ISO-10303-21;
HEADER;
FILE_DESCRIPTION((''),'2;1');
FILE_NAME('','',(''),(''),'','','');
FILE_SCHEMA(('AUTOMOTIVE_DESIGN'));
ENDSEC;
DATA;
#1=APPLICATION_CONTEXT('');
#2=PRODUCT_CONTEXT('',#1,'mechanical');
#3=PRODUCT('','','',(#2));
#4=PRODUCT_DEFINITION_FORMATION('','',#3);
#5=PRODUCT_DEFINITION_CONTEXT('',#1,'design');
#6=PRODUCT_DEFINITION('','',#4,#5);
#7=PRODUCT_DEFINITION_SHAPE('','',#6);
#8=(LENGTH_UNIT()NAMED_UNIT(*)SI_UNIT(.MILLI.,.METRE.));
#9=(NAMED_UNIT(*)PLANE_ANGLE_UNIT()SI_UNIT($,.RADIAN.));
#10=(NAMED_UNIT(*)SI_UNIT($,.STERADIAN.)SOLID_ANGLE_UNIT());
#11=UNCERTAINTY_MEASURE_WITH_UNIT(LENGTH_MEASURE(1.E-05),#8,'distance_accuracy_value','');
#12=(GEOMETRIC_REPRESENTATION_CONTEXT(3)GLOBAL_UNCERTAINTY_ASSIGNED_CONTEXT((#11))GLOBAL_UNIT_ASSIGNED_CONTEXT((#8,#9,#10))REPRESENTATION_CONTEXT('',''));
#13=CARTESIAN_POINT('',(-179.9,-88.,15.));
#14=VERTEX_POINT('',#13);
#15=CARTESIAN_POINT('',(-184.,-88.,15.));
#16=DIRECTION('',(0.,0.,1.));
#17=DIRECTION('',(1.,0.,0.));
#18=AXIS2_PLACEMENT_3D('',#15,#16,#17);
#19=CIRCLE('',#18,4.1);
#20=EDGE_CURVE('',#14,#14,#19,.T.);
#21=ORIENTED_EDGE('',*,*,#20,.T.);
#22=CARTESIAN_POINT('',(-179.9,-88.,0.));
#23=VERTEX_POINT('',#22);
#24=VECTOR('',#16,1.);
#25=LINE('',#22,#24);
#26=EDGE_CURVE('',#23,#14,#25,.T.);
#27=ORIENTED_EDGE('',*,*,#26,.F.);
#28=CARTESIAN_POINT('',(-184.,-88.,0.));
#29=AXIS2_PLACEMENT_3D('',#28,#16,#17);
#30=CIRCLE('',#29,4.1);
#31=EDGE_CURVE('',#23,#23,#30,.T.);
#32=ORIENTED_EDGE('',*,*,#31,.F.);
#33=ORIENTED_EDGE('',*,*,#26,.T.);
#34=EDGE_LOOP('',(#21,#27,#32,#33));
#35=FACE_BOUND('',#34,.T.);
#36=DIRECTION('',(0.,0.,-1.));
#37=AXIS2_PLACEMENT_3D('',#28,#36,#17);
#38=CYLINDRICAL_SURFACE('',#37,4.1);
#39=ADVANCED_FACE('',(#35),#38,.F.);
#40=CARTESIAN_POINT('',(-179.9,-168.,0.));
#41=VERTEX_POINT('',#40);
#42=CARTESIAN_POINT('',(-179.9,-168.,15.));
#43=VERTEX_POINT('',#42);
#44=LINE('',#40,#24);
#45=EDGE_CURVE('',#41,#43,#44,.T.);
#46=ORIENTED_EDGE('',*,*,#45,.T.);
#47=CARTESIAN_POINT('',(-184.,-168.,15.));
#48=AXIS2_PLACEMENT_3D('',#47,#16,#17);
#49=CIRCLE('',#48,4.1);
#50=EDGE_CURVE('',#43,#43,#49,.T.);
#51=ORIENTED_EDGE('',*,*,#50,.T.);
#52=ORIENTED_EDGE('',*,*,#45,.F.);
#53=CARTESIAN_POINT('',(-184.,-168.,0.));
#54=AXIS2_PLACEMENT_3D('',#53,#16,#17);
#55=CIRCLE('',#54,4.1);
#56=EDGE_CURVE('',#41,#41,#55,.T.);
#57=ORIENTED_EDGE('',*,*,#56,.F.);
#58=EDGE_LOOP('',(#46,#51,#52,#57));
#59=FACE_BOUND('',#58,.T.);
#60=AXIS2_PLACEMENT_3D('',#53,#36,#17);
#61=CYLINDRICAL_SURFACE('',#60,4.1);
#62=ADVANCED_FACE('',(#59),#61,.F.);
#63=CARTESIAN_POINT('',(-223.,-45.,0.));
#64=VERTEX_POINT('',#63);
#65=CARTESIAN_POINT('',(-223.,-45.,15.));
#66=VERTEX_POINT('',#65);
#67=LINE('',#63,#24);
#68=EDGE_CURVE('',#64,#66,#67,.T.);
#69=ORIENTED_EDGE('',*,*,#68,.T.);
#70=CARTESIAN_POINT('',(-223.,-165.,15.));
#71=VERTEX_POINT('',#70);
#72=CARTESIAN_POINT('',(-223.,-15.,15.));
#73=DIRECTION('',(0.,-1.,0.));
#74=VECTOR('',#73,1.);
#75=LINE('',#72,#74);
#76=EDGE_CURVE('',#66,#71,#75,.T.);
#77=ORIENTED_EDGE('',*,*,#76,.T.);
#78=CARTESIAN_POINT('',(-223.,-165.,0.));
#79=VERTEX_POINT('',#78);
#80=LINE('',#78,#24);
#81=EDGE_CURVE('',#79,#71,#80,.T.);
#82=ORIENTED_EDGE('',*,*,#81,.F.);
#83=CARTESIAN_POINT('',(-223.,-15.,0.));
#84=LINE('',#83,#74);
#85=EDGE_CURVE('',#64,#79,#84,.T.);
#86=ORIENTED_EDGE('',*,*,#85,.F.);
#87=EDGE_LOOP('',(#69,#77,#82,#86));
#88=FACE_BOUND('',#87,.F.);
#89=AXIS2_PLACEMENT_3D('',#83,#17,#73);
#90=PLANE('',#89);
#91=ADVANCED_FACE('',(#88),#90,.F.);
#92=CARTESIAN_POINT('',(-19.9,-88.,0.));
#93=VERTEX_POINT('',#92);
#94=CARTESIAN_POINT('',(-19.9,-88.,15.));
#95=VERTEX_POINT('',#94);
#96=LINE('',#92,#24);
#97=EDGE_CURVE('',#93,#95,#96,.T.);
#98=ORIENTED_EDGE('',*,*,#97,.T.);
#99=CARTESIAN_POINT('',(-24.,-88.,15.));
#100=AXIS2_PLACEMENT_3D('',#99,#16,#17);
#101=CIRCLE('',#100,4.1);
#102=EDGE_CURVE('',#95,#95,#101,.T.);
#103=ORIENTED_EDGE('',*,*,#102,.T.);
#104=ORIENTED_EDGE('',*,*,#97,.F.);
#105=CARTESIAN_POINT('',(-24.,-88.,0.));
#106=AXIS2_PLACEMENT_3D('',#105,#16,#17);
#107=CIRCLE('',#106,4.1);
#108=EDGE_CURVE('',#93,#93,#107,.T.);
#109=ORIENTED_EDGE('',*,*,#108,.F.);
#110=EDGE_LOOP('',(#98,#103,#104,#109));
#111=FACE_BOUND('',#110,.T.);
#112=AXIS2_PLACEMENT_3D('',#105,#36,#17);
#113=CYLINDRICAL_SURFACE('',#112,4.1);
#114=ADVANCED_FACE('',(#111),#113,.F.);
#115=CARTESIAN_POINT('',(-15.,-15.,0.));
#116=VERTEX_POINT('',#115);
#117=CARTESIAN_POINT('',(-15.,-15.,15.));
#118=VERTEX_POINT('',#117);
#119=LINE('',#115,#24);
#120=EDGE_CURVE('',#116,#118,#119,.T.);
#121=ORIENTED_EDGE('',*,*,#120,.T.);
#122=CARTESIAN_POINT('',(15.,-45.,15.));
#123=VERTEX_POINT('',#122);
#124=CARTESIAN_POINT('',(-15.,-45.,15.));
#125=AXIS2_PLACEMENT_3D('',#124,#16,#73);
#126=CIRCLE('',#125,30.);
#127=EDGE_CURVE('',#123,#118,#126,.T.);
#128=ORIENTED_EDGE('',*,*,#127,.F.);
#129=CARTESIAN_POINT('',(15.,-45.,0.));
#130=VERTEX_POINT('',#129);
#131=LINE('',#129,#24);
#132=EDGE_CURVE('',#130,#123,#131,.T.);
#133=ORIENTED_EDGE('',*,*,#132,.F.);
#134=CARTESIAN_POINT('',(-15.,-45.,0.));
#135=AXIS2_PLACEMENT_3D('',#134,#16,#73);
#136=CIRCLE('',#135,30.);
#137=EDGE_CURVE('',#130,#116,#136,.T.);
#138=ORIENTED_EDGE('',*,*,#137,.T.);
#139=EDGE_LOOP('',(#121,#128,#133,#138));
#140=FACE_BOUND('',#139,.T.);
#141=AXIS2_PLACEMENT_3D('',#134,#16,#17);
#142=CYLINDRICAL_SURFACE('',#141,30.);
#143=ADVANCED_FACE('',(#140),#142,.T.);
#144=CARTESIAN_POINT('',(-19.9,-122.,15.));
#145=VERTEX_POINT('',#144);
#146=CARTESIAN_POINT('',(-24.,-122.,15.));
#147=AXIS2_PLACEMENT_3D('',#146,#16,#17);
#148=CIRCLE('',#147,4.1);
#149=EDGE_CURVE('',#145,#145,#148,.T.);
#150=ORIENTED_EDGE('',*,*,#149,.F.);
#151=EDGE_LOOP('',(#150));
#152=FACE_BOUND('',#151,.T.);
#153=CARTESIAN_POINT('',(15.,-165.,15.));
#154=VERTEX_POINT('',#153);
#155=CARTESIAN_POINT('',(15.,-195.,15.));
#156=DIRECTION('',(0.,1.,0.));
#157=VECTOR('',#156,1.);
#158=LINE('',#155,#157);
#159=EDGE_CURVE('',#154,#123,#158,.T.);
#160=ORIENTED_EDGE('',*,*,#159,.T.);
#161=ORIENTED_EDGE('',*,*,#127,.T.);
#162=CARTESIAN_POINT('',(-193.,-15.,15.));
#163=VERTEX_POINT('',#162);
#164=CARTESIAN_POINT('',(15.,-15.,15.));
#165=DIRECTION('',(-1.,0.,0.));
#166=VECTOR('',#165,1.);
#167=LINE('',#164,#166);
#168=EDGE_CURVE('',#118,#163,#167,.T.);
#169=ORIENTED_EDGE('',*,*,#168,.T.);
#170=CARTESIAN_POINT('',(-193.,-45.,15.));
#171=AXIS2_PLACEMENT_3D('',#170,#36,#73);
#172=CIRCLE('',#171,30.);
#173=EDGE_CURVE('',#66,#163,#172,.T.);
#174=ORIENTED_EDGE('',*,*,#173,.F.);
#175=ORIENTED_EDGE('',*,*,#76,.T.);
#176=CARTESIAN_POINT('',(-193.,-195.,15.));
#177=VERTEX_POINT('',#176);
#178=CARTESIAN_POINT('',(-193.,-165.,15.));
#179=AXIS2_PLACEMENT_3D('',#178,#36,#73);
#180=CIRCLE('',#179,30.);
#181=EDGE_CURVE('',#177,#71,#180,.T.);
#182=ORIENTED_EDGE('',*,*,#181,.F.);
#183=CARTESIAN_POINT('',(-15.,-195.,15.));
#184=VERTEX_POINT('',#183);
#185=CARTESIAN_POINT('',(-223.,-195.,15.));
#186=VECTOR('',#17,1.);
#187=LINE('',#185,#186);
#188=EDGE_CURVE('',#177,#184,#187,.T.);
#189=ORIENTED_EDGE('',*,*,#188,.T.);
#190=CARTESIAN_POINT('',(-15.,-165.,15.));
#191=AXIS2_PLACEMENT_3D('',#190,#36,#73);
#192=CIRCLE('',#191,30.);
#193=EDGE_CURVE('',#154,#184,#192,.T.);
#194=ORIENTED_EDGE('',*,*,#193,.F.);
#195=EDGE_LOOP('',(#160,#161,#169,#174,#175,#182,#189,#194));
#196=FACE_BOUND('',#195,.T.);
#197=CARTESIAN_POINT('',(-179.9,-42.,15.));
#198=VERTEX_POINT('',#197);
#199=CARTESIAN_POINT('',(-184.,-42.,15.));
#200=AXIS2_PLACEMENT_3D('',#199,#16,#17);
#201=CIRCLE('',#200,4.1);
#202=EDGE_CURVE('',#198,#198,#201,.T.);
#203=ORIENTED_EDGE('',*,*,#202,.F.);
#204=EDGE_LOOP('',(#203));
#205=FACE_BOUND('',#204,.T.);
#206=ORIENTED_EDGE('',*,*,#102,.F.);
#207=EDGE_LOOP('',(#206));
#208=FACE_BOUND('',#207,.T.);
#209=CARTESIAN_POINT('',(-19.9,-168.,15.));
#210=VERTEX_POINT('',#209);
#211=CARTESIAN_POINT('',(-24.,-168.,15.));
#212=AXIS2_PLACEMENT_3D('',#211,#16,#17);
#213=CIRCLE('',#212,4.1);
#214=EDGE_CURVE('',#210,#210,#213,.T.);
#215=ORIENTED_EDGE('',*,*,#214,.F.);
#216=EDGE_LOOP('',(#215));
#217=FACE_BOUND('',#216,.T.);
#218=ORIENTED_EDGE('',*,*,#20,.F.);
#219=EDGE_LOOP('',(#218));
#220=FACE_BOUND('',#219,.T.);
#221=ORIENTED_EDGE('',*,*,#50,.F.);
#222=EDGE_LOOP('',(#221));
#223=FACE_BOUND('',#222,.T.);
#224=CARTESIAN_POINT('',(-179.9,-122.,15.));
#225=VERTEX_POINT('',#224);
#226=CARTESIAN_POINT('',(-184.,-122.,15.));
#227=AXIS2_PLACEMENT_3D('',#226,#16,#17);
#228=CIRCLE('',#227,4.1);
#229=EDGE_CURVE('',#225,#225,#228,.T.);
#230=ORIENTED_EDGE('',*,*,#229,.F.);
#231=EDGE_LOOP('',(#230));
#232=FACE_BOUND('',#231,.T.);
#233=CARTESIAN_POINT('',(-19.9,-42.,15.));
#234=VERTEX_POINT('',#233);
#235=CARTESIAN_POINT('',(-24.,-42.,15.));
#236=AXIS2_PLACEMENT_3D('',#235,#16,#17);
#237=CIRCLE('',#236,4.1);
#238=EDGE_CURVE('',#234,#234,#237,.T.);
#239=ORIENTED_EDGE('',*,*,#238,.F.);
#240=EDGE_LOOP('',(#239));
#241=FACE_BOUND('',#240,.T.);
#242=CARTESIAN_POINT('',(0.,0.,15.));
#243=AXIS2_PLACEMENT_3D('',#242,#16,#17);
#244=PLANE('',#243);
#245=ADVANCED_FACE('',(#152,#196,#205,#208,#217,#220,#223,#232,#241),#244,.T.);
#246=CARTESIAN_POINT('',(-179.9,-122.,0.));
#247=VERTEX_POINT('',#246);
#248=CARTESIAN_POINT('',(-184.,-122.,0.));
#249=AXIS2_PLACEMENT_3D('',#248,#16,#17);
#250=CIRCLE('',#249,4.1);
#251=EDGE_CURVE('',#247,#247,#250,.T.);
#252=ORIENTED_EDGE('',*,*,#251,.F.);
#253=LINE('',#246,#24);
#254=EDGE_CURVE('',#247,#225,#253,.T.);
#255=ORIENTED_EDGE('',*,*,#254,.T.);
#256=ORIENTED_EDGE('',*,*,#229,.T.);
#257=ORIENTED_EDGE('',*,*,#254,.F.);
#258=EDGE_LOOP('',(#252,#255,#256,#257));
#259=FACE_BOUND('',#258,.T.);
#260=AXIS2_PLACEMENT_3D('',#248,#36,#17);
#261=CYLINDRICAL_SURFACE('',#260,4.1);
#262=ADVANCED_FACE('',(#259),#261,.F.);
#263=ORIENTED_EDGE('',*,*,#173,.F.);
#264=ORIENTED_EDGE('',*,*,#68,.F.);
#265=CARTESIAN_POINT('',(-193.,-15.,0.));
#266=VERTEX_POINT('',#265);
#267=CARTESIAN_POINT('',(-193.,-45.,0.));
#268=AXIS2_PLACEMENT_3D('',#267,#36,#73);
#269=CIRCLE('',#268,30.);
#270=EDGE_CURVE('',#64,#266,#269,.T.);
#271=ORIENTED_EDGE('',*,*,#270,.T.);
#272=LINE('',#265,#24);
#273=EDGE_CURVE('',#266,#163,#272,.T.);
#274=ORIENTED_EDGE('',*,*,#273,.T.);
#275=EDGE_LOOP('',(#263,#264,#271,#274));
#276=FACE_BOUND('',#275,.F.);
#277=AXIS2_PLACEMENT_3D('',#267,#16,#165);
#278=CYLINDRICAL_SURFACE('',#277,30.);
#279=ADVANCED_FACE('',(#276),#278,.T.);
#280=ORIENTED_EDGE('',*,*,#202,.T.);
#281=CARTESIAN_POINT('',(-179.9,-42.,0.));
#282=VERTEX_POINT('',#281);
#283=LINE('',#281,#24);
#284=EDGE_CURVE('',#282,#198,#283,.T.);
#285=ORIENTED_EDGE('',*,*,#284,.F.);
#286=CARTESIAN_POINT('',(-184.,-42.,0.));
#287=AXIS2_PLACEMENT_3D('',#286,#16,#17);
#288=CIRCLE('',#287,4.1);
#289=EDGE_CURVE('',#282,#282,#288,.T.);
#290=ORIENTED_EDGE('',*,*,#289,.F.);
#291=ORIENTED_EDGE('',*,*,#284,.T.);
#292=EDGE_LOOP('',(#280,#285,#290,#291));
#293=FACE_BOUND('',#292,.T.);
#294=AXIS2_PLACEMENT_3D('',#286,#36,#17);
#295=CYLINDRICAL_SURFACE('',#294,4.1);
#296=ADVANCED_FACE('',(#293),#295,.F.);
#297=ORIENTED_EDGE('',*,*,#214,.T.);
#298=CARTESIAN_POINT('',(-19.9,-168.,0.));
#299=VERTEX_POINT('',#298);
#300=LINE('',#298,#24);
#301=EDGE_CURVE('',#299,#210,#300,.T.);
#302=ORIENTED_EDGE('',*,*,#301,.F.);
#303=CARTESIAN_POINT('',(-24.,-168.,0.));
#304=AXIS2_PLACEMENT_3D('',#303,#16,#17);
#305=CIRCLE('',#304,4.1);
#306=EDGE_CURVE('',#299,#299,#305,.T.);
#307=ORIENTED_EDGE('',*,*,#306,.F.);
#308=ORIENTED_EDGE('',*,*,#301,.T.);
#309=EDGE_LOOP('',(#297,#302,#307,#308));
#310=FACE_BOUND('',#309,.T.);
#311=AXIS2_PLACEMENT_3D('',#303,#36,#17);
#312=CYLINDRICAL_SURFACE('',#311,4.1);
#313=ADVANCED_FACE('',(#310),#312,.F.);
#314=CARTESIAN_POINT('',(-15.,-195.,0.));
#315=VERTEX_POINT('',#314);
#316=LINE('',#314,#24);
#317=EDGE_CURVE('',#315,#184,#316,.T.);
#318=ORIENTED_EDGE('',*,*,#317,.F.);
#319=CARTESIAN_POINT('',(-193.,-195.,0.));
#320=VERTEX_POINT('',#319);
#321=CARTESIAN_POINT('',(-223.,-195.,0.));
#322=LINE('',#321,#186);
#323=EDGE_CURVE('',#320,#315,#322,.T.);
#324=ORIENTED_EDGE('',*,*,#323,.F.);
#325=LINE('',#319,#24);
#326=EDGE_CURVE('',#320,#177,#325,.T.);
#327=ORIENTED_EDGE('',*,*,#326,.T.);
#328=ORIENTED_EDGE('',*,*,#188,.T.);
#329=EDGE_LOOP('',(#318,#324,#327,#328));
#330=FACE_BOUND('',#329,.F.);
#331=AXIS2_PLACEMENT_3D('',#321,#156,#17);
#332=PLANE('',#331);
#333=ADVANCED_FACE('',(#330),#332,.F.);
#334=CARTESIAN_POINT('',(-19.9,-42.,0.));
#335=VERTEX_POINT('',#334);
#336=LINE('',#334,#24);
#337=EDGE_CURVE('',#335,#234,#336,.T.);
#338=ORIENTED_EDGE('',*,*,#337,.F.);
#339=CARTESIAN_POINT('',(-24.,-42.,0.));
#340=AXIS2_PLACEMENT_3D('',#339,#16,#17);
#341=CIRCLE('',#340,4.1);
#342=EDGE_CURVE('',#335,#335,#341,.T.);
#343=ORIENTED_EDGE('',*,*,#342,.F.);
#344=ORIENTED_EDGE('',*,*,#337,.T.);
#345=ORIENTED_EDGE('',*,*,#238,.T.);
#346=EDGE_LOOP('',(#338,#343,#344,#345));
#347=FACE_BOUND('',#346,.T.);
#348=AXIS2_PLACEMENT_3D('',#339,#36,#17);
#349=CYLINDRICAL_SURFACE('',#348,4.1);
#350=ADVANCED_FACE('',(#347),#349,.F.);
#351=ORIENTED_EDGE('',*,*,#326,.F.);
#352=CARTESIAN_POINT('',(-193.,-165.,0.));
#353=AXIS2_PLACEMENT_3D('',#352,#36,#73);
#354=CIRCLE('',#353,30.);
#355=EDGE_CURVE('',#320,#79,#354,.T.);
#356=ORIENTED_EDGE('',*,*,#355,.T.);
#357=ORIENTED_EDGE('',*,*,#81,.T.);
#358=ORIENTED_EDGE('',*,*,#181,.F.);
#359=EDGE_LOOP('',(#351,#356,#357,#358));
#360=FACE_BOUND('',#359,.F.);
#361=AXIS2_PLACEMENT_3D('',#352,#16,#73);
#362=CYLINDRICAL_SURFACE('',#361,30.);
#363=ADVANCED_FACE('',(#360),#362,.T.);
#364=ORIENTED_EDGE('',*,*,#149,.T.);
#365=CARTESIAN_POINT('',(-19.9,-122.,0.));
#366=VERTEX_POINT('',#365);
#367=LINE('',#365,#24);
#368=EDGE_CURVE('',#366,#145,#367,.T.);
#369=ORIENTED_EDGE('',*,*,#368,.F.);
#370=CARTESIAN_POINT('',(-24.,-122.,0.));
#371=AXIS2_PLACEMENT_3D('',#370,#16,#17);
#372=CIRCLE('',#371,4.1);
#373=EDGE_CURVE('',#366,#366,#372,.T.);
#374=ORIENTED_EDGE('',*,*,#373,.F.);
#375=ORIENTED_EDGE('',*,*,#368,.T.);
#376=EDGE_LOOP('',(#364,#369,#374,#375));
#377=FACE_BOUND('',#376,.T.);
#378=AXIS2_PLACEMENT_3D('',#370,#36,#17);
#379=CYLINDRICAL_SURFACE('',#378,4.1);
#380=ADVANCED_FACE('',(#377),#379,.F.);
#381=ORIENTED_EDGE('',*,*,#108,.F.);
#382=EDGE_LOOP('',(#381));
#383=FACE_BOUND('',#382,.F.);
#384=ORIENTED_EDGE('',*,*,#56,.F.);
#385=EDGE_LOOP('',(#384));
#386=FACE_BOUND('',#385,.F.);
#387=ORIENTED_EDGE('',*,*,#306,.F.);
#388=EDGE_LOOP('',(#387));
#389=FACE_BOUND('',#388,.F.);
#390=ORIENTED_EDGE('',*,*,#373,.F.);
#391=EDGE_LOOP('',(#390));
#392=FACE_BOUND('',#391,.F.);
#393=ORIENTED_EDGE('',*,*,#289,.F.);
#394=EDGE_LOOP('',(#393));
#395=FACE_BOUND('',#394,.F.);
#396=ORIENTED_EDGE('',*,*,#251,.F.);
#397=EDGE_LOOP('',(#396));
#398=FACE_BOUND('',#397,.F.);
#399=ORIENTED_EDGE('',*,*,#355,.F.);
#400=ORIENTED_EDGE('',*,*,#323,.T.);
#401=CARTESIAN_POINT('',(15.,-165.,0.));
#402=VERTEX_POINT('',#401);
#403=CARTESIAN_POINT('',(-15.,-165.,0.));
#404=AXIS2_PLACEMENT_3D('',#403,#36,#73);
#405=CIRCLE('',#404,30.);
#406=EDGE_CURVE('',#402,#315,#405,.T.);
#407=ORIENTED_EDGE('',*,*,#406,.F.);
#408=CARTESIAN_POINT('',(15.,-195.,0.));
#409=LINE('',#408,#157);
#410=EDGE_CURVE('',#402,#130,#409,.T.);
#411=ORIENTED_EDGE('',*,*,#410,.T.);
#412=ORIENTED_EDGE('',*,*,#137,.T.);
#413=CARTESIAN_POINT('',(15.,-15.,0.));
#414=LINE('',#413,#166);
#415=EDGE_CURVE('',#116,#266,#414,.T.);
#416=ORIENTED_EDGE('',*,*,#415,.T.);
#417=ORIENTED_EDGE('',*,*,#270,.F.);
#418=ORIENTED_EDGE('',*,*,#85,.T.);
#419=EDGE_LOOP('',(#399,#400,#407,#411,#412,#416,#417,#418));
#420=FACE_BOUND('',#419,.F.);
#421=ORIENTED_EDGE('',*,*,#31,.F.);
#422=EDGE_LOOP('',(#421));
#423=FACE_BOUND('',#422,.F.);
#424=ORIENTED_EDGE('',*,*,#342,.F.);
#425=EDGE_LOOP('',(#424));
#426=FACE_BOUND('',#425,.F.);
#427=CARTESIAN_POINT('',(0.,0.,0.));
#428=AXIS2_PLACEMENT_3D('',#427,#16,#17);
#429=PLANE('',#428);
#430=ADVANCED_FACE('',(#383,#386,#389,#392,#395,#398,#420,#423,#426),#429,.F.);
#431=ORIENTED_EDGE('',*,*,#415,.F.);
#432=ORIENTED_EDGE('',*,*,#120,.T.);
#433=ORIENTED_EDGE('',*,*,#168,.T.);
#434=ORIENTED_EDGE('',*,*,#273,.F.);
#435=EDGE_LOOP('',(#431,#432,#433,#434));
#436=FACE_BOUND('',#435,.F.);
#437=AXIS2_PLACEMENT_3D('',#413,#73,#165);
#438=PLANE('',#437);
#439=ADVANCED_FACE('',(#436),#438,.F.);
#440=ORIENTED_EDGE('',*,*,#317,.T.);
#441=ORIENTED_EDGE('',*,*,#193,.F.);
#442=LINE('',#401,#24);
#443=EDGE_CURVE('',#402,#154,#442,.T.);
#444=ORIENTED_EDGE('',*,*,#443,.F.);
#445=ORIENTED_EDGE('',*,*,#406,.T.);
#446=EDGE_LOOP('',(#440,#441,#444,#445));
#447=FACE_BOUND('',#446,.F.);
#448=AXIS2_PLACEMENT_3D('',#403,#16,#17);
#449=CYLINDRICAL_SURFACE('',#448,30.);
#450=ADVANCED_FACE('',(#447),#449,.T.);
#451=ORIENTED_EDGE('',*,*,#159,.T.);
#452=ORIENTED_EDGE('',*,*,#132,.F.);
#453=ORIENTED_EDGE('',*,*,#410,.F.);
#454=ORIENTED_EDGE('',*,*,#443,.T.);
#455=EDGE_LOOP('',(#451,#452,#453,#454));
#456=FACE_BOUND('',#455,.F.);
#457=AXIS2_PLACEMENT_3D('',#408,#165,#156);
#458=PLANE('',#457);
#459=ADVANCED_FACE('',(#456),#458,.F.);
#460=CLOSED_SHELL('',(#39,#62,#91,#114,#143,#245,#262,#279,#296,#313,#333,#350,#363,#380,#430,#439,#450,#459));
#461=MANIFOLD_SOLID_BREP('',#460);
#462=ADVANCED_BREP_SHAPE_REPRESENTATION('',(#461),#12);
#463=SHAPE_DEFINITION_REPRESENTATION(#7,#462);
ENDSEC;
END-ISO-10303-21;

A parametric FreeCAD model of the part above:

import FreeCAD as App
import Part
import Sketcher

V = App.Vector
Q = App.Units.Quantity


def edges_at(feature, points):
    """Names of the edges that pass closest to the given points."""
    edges = feature.Shape.Edges
    near = lambda p: min(range(len(edges)), key=lambda i: edges[i].distToShape(Part.Vertex(*p))[0])
    return sorted({f"Edge{near(p) + 1}" for p in points})


def add_polygon(sketch, points):
    """Adds a closed chain of lines whose ends are joined by coincident constraints."""
    first, n = sketch.GeometryCount, len(points)
    for a, b in zip(points, points[1:] + points[:1]):
        sketch.addGeometry(Part.LineSegment(App.Vector(*a, 0), App.Vector(*b, 0)), False)
    for i in range(n):
        sketch.addConstraint(Sketcher.Constraint("Coincident", first + i, 2, first + (i + 1) % n, 1))

doc = App.newDocument("Part")
body = doc.addObject("PartDesign::Body", "Body")

# Sketch on XY plane
sketch1 = body.newObject("Sketcher::SketchObject", "Sketch")
sketch1.AttachmentSupport = (doc.getObject("XY_Plane"), [""])
sketch1.MapMode = "FlatFace"
add_polygon(sketch1, [(15, -195), (15, -15), (-223, -15), (-223, -195)])  # lines 0-3
sketch1.addGeometry(Part.Circle(V(-184, -168, 0), V(0, 0, 1), 4.1), False)  # 4
sketch1.addGeometry(Part.Circle(V(-184, -122, 0), V(0, 0, 1), 4.1), False)  # 5
sketch1.addGeometry(Part.Circle(V(-24, -168, 0), V(0, 0, 1), 4.1), False)  # 6
sketch1.addGeometry(Part.Circle(V(-24, -122, 0), V(0, 0, 1), 4.1), False)  # 7
sketch1.addGeometry(Part.Circle(V(-184, -88, 0), V(0, 0, 1), 4.1), False)  # 8
sketch1.addGeometry(Part.Circle(V(-184, -42, 0), V(0, 0, 1), 4.1), False)  # 9
sketch1.addGeometry(Part.Circle(V(-24, -88, 0), V(0, 0, 1), 4.1), False)  # 10
sketch1.addGeometry(Part.Circle(V(-24, -42, 0), V(0, 0, 1), 4.1), False)  # 11
sketch1.addConstraint(Sketcher.Constraint("Vertical", 0))
sketch1.addConstraint(Sketcher.Constraint("Horizontal", 1))
sketch1.addConstraint(Sketcher.Constraint("Vertical", 2))
sketch1.addConstraint(Sketcher.Constraint("Horizontal", 3))
sketch1.addConstraint(Sketcher.Constraint("Equal", 4, 5))
sketch1.addConstraint(Sketcher.Constraint("Equal", 5, 6))
sketch1.addConstraint(Sketcher.Constraint("Equal", 6, 7))
sketch1.addConstraint(Sketcher.Constraint("Equal", 7, 8))
sketch1.addConstraint(Sketcher.Constraint("Equal", 8, 9))
sketch1.addConstraint(Sketcher.Constraint("Equal", 9, 10))
sketch1.addConstraint(Sketcher.Constraint("Equal", 10, 11))
sketch1.addConstraint(Sketcher.Constraint("Horizontal", 4, 3, 6, 3))
sketch1.addConstraint(Sketcher.Constraint("Horizontal", 5, 3, 7, 3))
sketch1.addConstraint(Sketcher.Constraint("Horizontal", 8, 3, 10, 3))
sketch1.addConstraint(Sketcher.Constraint("Horizontal", 9, 3, 11, 3))
sketch1.addConstraint(Sketcher.Constraint("Vertical", 4, 3, 5, 3))
sketch1.addConstraint(Sketcher.Constraint("Vertical", 6, 3, 7, 3))
sketch1.addConstraint(Sketcher.Constraint("Vertical", 5, 3, 8, 3))
sketch1.addConstraint(Sketcher.Constraint("Vertical", 8, 3, 9, 3))
sketch1.addConstraint(Sketcher.Constraint("Vertical", 7, 3, 10, 3))
sketch1.addConstraint(Sketcher.Constraint("Vertical", 10, 3, 11, 3))
sketch1.addConstraint(Sketcher.Constraint("DistanceX", -1, 1, 0, 2, Q("15 mm")))
sketch1.addConstraint(Sketcher.Constraint("DistanceY", 0, 2, -1, 1, Q("15 mm")))
sketch1.addConstraint(Sketcher.Constraint("Diameter", 4, Q("8.2 mm")))
sketch1.addConstraint(Sketcher.Constraint("DistanceX", 1, 2, 1, 1, Q("238 mm")))
sketch1.addConstraint(Sketcher.Constraint("DistanceY", 0, 1, 0, 2, Q("180 mm")))
sketch1.addConstraint(Sketcher.Constraint("DistanceX", 4, 3, -1, 1, Q("184 mm")))
sketch1.addConstraint(Sketcher.Constraint("DistanceY", 4, 3, -1, 1, Q("168 mm")))
sketch1.addConstraint(Sketcher.Constraint("DistanceY", 5, 3, -1, 1, Q("122 mm")))
sketch1.addConstraint(Sketcher.Constraint("DistanceX", 6, 3, -1, 1, Q("24 mm")))
sketch1.addConstraint(Sketcher.Constraint("DistanceY", 8, 3, -1, 1, Q("88 mm")))
sketch1.addConstraint(Sketcher.Constraint("DistanceY", 9, 3, -1, 1, Q("42 mm")))
pad1 = body.newObject("PartDesign::Pad", "Pad")
pad1.Profile = sketch1
pad1.Length = 15
doc.recompute()

fillet = body.newObject("PartDesign::Fillet", "Fillet")
fillet.Base = (pad1, edges_at(pad1, [
    (15, -15, 7.5),
    (-223, -15, 7.5),
    (-223, -195, 7.5),
    (15, -195, 7.5),
]))
fillet.Radius = 30

doc.recompute()
